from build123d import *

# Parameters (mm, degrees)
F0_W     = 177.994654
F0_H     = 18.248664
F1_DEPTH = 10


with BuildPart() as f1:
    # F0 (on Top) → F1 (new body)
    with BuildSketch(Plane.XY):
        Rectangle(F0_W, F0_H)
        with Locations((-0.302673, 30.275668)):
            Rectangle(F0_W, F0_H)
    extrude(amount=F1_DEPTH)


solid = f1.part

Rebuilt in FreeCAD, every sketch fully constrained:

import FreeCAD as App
import Part
import Sketcher

V = App.Vector


def add_polygon(sketch, points):
    """Adds a closed chain of lines whose ends are joined by coincident constraints."""
    first, n = sketch.GeometryCount, len(points)
    for a, b in zip(points, points[1:] + points[:1]):
        sketch.addGeometry(Part.LineSegment(App.Vector(*a, 0), App.Vector(*b, 0)), False)
    for i in range(n):
        sketch.addConstraint(Sketcher.Constraint("Coincident", first + i, 2, first + (i + 1) % n, 1))

doc = App.newDocument("Part")
body = doc.addObject("PartDesign::Body", "Body")
body.AllowCompound = True

# Sketch on XY plane
sketch1 = body.newObject("Sketcher::SketchObject", "Sketch")
sketch1.AttachmentSupport = (doc.getObject("XY_Plane"), [""])
sketch1.MapMode = "FlatFace"
add_polygon(sketch1, [(-88.997327, 9.124332), (-88.997327, -9.124332), (88.997327, -9.124332), (88.997327, 9.124332)])  # lines 0-3
add_polygon(sketch1, [(-89.3, 39.4), (-89.3, 21.151336), (88.694654, 21.151336), (88.694654, 39.4)])  # lines 4-7
sketch1.addConstraint([
    Sketcher.Constraint("Vertical", 0),
    Sketcher.Constraint("Horizontal", 1),
    Sketcher.Constraint("Vertical", 2),
    Sketcher.Constraint("Horizontal", 3),
    Sketcher.Constraint("Vertical", 4),
    Sketcher.Constraint("Horizontal", 5),
    Sketcher.Constraint("Vertical", 6),
    Sketcher.Constraint("Horizontal", 7),
    Sketcher.Constraint("Symmetric", 0, 2, 2, 2, -1, 1),
    Sketcher.Constraint("Equal", 3, 5),
    Sketcher.Constraint("Equal", 2, 4),
    Sketcher.Constraint("DistanceX", 4, 2, -1, 1, 89.3),
    Sketcher.Constraint("DistanceY", -1, 1, 6, 2, 39.4),
    Sketcher.Constraint("DistanceX", 1, 1, 1, 2, 177.994654),
    Sketcher.Constraint("DistanceY", 0, 2, 0, 1, 18.248664),
])
pad1 = body.newObject("PartDesign::Pad", "Pad")
pad1.Profile = sketch1
pad1.Length = 10

doc.recompute()
